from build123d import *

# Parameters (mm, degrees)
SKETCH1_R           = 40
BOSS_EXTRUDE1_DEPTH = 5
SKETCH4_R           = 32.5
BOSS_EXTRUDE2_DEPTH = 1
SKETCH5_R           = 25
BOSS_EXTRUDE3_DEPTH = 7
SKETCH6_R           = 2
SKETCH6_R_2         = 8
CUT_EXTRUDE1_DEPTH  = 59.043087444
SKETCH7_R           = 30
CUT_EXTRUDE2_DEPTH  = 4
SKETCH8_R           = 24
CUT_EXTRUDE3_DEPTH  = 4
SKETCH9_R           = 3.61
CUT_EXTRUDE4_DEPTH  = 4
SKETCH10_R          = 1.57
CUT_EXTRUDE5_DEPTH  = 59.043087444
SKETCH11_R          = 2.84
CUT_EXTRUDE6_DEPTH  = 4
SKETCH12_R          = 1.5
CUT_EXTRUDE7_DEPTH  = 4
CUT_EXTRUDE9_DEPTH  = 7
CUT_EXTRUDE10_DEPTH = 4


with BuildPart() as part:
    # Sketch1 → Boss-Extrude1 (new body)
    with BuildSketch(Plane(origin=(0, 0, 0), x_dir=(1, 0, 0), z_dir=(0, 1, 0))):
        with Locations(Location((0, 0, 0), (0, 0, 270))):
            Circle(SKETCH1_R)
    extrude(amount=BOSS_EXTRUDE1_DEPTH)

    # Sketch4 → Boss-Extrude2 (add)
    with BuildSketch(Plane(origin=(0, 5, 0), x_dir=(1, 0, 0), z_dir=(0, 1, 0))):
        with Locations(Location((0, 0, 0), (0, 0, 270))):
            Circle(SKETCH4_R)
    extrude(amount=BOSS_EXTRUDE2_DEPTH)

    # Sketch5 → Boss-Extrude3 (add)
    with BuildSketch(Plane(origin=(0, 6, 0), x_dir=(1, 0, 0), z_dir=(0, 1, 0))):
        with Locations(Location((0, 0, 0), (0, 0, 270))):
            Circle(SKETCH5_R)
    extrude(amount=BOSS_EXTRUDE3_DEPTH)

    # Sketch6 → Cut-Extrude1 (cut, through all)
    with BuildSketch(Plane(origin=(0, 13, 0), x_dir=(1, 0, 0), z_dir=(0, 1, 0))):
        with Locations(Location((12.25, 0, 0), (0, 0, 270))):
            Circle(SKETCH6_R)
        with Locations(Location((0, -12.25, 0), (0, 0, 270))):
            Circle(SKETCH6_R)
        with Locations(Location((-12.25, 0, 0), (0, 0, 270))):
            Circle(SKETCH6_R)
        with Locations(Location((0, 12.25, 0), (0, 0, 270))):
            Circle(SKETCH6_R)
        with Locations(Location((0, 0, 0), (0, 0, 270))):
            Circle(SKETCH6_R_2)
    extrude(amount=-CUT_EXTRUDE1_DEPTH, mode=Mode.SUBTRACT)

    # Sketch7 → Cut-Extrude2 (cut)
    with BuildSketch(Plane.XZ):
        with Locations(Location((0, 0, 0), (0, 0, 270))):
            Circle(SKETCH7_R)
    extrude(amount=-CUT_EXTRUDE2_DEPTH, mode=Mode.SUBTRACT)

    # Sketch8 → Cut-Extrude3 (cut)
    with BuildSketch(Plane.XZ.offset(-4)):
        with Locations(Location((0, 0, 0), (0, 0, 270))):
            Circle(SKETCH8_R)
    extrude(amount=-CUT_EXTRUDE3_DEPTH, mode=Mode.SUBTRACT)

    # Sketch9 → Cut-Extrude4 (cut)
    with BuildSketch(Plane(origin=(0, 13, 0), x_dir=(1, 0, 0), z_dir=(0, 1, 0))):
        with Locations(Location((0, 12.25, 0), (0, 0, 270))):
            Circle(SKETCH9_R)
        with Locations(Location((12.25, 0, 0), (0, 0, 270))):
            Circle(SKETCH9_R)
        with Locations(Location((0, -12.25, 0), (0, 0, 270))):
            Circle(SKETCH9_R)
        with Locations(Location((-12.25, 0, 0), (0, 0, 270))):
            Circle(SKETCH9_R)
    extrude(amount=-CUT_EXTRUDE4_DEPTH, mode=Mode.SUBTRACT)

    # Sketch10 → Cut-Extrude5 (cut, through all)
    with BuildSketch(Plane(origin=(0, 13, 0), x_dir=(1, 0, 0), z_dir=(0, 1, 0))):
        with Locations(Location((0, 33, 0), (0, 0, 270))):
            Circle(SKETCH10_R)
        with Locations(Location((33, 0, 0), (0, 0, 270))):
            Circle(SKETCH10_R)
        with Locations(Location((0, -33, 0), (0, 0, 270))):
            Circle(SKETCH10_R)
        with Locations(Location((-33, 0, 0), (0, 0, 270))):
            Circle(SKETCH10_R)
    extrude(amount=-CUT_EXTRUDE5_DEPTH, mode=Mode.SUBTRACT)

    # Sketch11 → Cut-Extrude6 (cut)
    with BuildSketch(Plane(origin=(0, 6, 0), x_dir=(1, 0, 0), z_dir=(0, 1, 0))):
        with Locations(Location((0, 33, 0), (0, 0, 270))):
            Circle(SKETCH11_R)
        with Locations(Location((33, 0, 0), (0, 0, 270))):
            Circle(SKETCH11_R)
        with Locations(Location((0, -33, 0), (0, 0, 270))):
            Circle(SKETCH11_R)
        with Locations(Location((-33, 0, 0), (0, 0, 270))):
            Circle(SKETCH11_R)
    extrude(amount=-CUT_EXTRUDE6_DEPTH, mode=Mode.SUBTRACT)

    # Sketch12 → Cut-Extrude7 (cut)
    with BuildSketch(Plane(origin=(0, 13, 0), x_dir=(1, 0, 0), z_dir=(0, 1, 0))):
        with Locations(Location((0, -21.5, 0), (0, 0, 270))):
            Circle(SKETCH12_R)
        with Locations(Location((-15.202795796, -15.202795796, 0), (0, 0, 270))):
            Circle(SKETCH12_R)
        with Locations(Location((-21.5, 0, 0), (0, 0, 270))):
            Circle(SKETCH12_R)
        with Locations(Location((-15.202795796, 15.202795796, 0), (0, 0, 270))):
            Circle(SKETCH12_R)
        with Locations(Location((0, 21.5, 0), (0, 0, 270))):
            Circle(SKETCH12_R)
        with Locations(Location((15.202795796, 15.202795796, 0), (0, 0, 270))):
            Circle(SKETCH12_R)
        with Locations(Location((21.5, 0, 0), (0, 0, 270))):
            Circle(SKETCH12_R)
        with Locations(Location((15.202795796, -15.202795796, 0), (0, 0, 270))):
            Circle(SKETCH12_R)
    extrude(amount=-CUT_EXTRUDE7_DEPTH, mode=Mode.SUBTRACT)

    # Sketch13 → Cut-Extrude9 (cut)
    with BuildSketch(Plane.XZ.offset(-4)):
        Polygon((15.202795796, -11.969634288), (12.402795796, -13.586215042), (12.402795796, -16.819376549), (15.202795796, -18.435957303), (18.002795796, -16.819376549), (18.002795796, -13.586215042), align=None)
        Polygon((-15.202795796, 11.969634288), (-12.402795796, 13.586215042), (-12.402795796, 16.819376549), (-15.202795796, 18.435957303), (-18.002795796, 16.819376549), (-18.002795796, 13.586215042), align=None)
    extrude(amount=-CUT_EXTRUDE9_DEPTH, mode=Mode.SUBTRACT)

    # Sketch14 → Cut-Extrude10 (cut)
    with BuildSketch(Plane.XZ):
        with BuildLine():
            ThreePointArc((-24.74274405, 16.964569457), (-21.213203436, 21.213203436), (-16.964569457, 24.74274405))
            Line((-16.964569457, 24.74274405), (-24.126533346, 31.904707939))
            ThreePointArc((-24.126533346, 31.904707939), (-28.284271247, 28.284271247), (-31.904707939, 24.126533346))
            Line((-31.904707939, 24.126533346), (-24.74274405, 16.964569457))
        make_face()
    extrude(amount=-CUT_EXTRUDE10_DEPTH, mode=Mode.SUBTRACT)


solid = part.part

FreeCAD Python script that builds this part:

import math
import FreeCAD as App
import Part
import Sketcher
Q = App.Units.Quantity

doc = App.newDocument("Part")
body = doc.addObject("PartDesign::Body", "Body")

# Sketch on XZ plane
sketch1 = body.newObject("Sketcher::SketchObject", "Sketch")
sketch1.AttachmentSupport = (doc.getObject("XZ_Plane"), [""])
sketch1.MapMode = "FlatFace"
sketch1.addGeometry(Part.Circle(App.Vector(0, 0, 0), App.Vector(0, 0, 1), 40), False)
sketch1.addConstraint([
    Sketcher.Constraint("Coincident", 0, 3, -1, 1),
    Sketcher.Constraint("Diameter", 0, 80.0),
])
pad1 = body.newObject("PartDesign::Pad", "Pad")
pad1.Profile = sketch1
pad1.Length = 5
pad1.Reversed = True

# Sketch on XZ plane
sketch2 = body.newObject("Sketcher::SketchObject", "Sketch001")
sketch2.AttachmentSupport = (doc.getObject("XZ_Plane"), [""])
sketch2.MapMode = "FlatFace"
sketch2.AttachmentOffset = App.Placement(App.Vector(0, 0, -5), App.Rotation())
sketch2.addGeometry(Part.Circle(App.Vector(0, 0, 0), App.Vector(0, 0, 1), 32), False)
sketch2.addConstraint([
    Sketcher.Constraint("Coincident", 0, 3, -1, 1),
    Sketcher.Constraint("Diameter", 0, 65.0),
])
pad2 = body.newObject("PartDesign::Pad", "Pad001")
pad2.Profile = sketch2
pad2.Length = 1
pad2.Reversed = True

# Sketch on XZ plane
sketch3 = body.newObject("Sketcher::SketchObject", "Sketch002")
sketch3.AttachmentSupport = (doc.getObject("XZ_Plane"), [""])
sketch3.MapMode = "FlatFace"
sketch3.AttachmentOffset = App.Placement(App.Vector(0, 0, -6), App.Rotation())
sketch3.addGeometry(Part.Circle(App.Vector(0, 0, 0), App.Vector(0, 0, 1), 25), False)
sketch3.addConstraint([
    Sketcher.Constraint("Coincident", 0, 3, -1, 1),
    Sketcher.Constraint("Diameter", 0, 50.0),
])
pad3 = body.newObject("PartDesign::Pad", "Pad002")
pad3.Profile = sketch3
pad3.Length = 7
pad3.Reversed = True

# Sketch on XZ plane
sketch4 = body.newObject("Sketcher::SketchObject", "Sketch003")
sketch4.AttachmentSupport = (doc.getObject("XZ_Plane"), [""])
sketch4.MapMode = "FlatFace"
sketch4.AttachmentOffset = App.Placement(App.Vector(0, 0, -13), App.Rotation())
sketch4.addGeometry([
    Part.Circle(App.Vector(12.2, 0, 0), App.Vector(0, 0, 1), 2),  # 0
    Part.Circle(App.Vector(0, 12.2, 0), App.Vector(0, 0, 1), 2),  # 1
    Part.Circle(App.Vector(-12.2, 0, 0), App.Vector(0, 0, 1), 2),  # 2
    Part.Circle(App.Vector(0, -12.2, 0), App.Vector(0, 0, 1), 2),  # 3
    Part.Circle(App.Vector(0, 0, 0), App.Vector(0, 0, 1), 8),  # 4
], False)
sketch4.addConstraint([
    Sketcher.Constraint("Coincident", 4, 3, -1, 1),
    Sketcher.Constraint("Equal", 0, 1),
    Sketcher.Constraint("Equal", 1, 2),
    Sketcher.Constraint("Equal", 2, 3),
    Sketcher.Constraint("Symmetric", 0, 3, 2, 3, -1, 1),
    Sketcher.Constraint("Symmetric", 1, 3, 3, 3, -1, 1),
    Sketcher.Constraint("PointOnObject", 0, 3, -1),
    Sketcher.Constraint("PointOnObject", 1, 3, -2),
    Sketcher.Constraint("Diameter", 0, 4.0),
    Sketcher.Constraint("Diameter", 4, 16.0),
    Sketcher.Constraint("DistanceX", 2, 3, 0, 3, 24.5),
    Sketcher.Constraint("DistanceY", 3, 3, 1, 3, 24.5),
])
pocket1 = body.newObject("PartDesign::Pocket", "Pocket")
pocket1.Profile = sketch4
pocket1.Type = "ThroughAll"
pocket1.Reversed = True

# Sketch on XZ plane
sketch5 = body.newObject("Sketcher::SketchObject", "Sketch004")
sketch5.AttachmentSupport = (doc.getObject("XZ_Plane"), [""])
sketch5.MapMode = "FlatFace"
sketch5.addGeometry(Part.Circle(App.Vector(0, 0, 0), App.Vector(0, 0, 1), 30), False)
sketch5.addConstraint([
    Sketcher.Constraint("Coincident", 0, 3, -1, 1),
    Sketcher.Constraint("Diameter", 0, 60.0),
])
pocket2 = body.newObject("PartDesign::Pocket", "Pocket001")
pocket2.Profile = sketch5
pocket2.Length = 4

# Sketch on XZ plane
sketch6 = body.newObject("Sketcher::SketchObject", "Sketch005")
sketch6.AttachmentSupport = (doc.getObject("XZ_Plane"), [""])
sketch6.MapMode = "FlatFace"
sketch6.AttachmentOffset = App.Placement(App.Vector(0, 0, -4), App.Rotation())
sketch6.addGeometry(Part.Circle(App.Vector(0, 0, 0), App.Vector(0, 0, 1), 24), False)
sketch6.addConstraint([
    Sketcher.Constraint("Coincident", 0, 3, -1, 1),
    Sketcher.Constraint("Diameter", 0, 48.0),
])
pocket3 = body.newObject("PartDesign::Pocket", "Pocket002")
pocket3.Profile = sketch6
pocket3.Length = 4

# Sketch on XZ plane
sketch7 = body.newObject("Sketcher::SketchObject", "Sketch006")
sketch7.AttachmentSupport = (doc.getObject("XZ_Plane"), [""])
sketch7.MapMode = "FlatFace"
sketch7.AttachmentOffset = App.Placement(App.Vector(0, 0, -13), App.Rotation())
sketch7.addGeometry([
    Part.Circle(App.Vector(0, -12.2, 0), App.Vector(0, 0, 1), 3.6),
    Part.Circle(App.Vector(12.2, 0, 0), App.Vector(0, 0, 1), 3.6),
    Part.Circle(App.Vector(0, 12.2, 0), App.Vector(0, 0, 1), 3.6),
    Part.Circle(App.Vector(-12.2, 0, 0), App.Vector(0, 0, 1), 3.6),
], False)
sketch7.addConstraint([
    Sketcher.Constraint("Equal", 0, 1),
    Sketcher.Constraint("Equal", 1, 2),
    Sketcher.Constraint("Equal", 2, 3),
    Sketcher.Constraint("Symmetric", 0, 3, 2, 3, -1, 1),
    Sketcher.Constraint("Symmetric", 1, 3, 3, 3, -1, 1),
    Sketcher.Constraint("PointOnObject", 0, 3, -2),
    Sketcher.Constraint("PointOnObject", 1, 3, -1),
    Sketcher.Constraint("Diameter", 0, 7.22),
    Sketcher.Constraint("DistanceY", 0, 3, 2, 3, 24.5),
    Sketcher.Constraint("DistanceX", 3, 3, 1, 3, 24.5),
])
pocket4 = body.newObject("PartDesign::Pocket", "Pocket003")
pocket4.Profile = sketch7
pocket4.Length = 4
pocket4.Reversed = True

# Sketch on XZ plane
sketch8 = body.newObject("Sketcher::SketchObject", "Sketch007")
sketch8.AttachmentSupport = (doc.getObject("XZ_Plane"), [""])
sketch8.MapMode = "FlatFace"
sketch8.AttachmentOffset = App.Placement(App.Vector(0, 0, -13), App.Rotation())
sketch8.addGeometry([
    Part.Circle(App.Vector(0, -33, 0), App.Vector(0, 0, 1), 1.6),
    Part.Circle(App.Vector(33, 0, 0), App.Vector(0, 0, 1), 1.6),
    Part.Circle(App.Vector(0, 33, 0), App.Vector(0, 0, 1), 1.6),
    Part.Circle(App.Vector(-33, 0, 0), App.Vector(0, 0, 1), 1.6),
], False)
sketch8.addConstraint([
    Sketcher.Constraint("Equal", 0, 1),
    Sketcher.Constraint("Equal", 1, 2),
    Sketcher.Constraint("Equal", 2, 3),
    Sketcher.Constraint("Symmetric", 0, 3, 2, 3, -1, 1),
    Sketcher.Constraint("Symmetric", 1, 3, 3, 3, -1, 1),
    Sketcher.Constraint("PointOnObject", 0, 3, -2),
    Sketcher.Constraint("PointOnObject", 1, 3, -1),
    Sketcher.Constraint("Diameter", 0, 3.14),
    Sketcher.Constraint("DistanceY", 0, 3, -1, 1, 33.0),
    Sketcher.Constraint("DistanceX", -1, 1, 1, 3, 33.0),
])
pocket5 = body.newObject("PartDesign::Pocket", "Pocket004")
pocket5.Profile = sketch8
pocket5.Type = "ThroughAll"
pocket5.Reversed = True

# Sketch on XZ plane
sketch9 = body.newObject("Sketcher::SketchObject", "Sketch008")
sketch9.AttachmentSupport = (doc.getObject("XZ_Plane"), [""])
sketch9.MapMode = "FlatFace"
sketch9.AttachmentOffset = App.Placement(App.Vector(0, 0, -6), App.Rotation())
sketch9.addGeometry([
    Part.Circle(App.Vector(0, -33, 0), App.Vector(0, 0, 1), 2.8),
    Part.Circle(App.Vector(33, 0, 0), App.Vector(0, 0, 1), 2.8),
    Part.Circle(App.Vector(0, 33, 0), App.Vector(0, 0, 1), 2.8),
    Part.Circle(App.Vector(-33, 0, 0), App.Vector(0, 0, 1), 2.8),
], False)
sketch9.addConstraint([
    Sketcher.Constraint("Equal", 0, 1),
    Sketcher.Constraint("Equal", 1, 2),
    Sketcher.Constraint("Equal", 2, 3),
    Sketcher.Constraint("Symmetric", 0, 3, 2, 3, -1, 1),
    Sketcher.Constraint("Symmetric", 1, 3, 3, 3, -1, 1),
    Sketcher.Constraint("PointOnObject", 0, 3, -2),
    Sketcher.Constraint("PointOnObject", 1, 3, -1),
    Sketcher.Constraint("Diameter", 0, 5.68),
    Sketcher.Constraint("DistanceY", 0, 3, -1, 1, 33.0),
    Sketcher.Constraint("DistanceX", -1, 1, 1, 3, 33.0),
])
pocket6 = body.newObject("PartDesign::Pocket", "Pocket005")
pocket6.Profile = sketch9
pocket6.Length = 4
pocket6.Reversed = True

# Sketch on XZ plane
sketch10 = body.newObject("Sketcher::SketchObject", "Sketch009")
sketch10.AttachmentSupport = (doc.getObject("XZ_Plane"), [""])
sketch10.MapMode = "FlatFace"
sketch10.AttachmentOffset = App.Placement(App.Vector(0, 0, -13), App.Rotation())
sketch10.addGeometry([
    Part.Circle(App.Vector(0, 21.5, 0), App.Vector(0, 0, 1), 1.5),  # 0
    Part.Circle(App.Vector(-15.2, 15.2, 0), App.Vector(0, 0, 1), 1.5),  # 1
    Part.Circle(App.Vector(-21.5, 0, 0), App.Vector(0, 0, 1), 1.5),  # 2
    Part.Circle(App.Vector(-15.2, -15.2, 0), App.Vector(0, 0, 1), 1.5),  # 3
    Part.Circle(App.Vector(0, -21.5, 0), App.Vector(0, 0, 1), 1.5),  # 4
    Part.Circle(App.Vector(15.2, -15.2, 0), App.Vector(0, 0, 1), 1.5),  # 5
    Part.Circle(App.Vector(21.5, 0, 0), App.Vector(0, 0, 1), 1.5),  # 6
    Part.Circle(App.Vector(15.2, 15.2, 0), App.Vector(0, 0, 1), 1.5),  # 7
], False)
sketch10.addConstraint([
    Sketcher.Constraint("Equal", 0, 1),
    Sketcher.Constraint("Equal", 1, 2),
    Sketcher.Constraint("Equal", 2, 3),
    Sketcher.Constraint("Equal", 3, 4),
    Sketcher.Constraint("Equal", 4, 5),
    Sketcher.Constraint("Equal", 5, 6),
    Sketcher.Constraint("Equal", 6, 7),
    Sketcher.Constraint("Symmetric", 0, 3, 4, 3, -1, 1),
    Sketcher.Constraint("Symmetric", 1, 3, 5, 3, -1, 1),
    Sketcher.Constraint("Symmetric", 2, 3, 6, 3, -1, 1),
    Sketcher.Constraint("Symmetric", 3, 3, 7, 3, -1, 1),
    Sketcher.Constraint("Symmetric", 3, 3, 5, 3, -2),
    Sketcher.Constraint("PointOnObject", 0, 3, -2),
    Sketcher.Constraint("PointOnObject", 2, 3, -1),
    Sketcher.Constraint("Diameter", 0, 3.0),
    Sketcher.Constraint("DistanceY", 4, 3, 0, 3, 43.0),
    Sketcher.Constraint("DistanceX", 2, 3, -1, 1, 21.5),
    Sketcher.Constraint("DistanceY", 3, 3, 1, 3, 30.405592),
    Sketcher.Constraint("DistanceX", 3, 3, 5, 3, 30.405592),
])
pocket7 = body.newObject("PartDesign::Pocket", "Pocket006")
pocket7.Profile = sketch10
pocket7.Length = 4
pocket7.Reversed = True

# Sketch on XZ plane
sketch11 = body.newObject("Sketcher::SketchObject", "Sketch010")
sketch11.AttachmentSupport = (doc.getObject("XZ_Plane"), [""])
sketch11.MapMode = "FlatFace"
sketch11.AttachmentOffset = App.Placement(App.Vector(0, 0, -4), App.Rotation())
sketch11.addGeometry([
    Part.LineSegment(App.Vector(15.2, -12, 0), App.Vector(12.4, -13.6, 0)),  # 0
    Part.LineSegment(App.Vector(12.4, -13.6, 0), App.Vector(12.4, -16.8, 0)),  # 1
    Part.LineSegment(App.Vector(12.4, -16.8, 0), App.Vector(15.2, -18.4, 0)),  # 2
    Part.LineSegment(App.Vector(15.2, -18.4, 0), App.Vector(18, -16.8, 0)),  # 3
    Part.LineSegment(App.Vector(18, -16.8, 0), App.Vector(18, -13.6, 0)),  # 4
    Part.LineSegment(App.Vector(18, -13.6, 0), App.Vector(15.2, -12, 0)),  # 5
    Part.LineSegment(App.Vector(-15.2, 12, 0), App.Vector(-12.4, 13.6, 0)),  # 6
    Part.LineSegment(App.Vector(-12.4, 13.6, 0), App.Vector(-12.4, 16.8, 0)),  # 7
    Part.LineSegment(App.Vector(-12.4, 16.8, 0), App.Vector(-15.2, 18.4, 0)),  # 8
    Part.LineSegment(App.Vector(-15.2, 18.4, 0), App.Vector(-18, 16.8, 0)),  # 9
    Part.LineSegment(App.Vector(-18, 16.8, 0), App.Vector(-18, 13.6, 0)),  # 10
    Part.LineSegment(App.Vector(-18, 13.6, 0), App.Vector(-15.2, 12, 0)),  # 11
], False)
sketch11.addConstraint([
    Sketcher.Constraint("Coincident", 0, 2, 1, 1),
    Sketcher.Constraint("Coincident", 1, 2, 2, 1),
    Sketcher.Constraint("Coincident", 2, 2, 3, 1),
    Sketcher.Constraint("Coincident", 3, 2, 4, 1),
    Sketcher.Constraint("Coincident", 4, 2, 5, 1),
    Sketcher.Constraint("Coincident", 5, 2, 0, 1),
    Sketcher.Constraint("Coincident", 6, 2, 7, 1),
    Sketcher.Constraint("Coincident", 7, 2, 8, 1),
    Sketcher.Constraint("Coincident", 8, 2, 9, 1),
    Sketcher.Constraint("Coincident", 9, 2, 10, 1),
    Sketcher.Constraint("Coincident", 10, 2, 11, 1),
    Sketcher.Constraint("Coincident", 11, 2, 6, 1),
    Sketcher.Constraint("Vertical", 1),
    Sketcher.Constraint("Vertical", 4),
    Sketcher.Constraint("Vertical", 7),
    Sketcher.Constraint("Vertical", 10),
    Sketcher.Constraint("Symmetric", 0, 2, 6, 2, -1, 1),
    Sketcher.Constraint("Symmetric", 2, 2, 8, 2, -1, 1),
    Sketcher.Constraint("Symmetric", 3, 2, 9, 2, -1, 1),
    Sketcher.Constraint("Symmetric", 5, 2, 11, 2, -1, 1),
    Sketcher.Constraint("Parallel", 0, 3),
    Sketcher.Constraint("Parallel", 2, 5),
    Sketcher.Constraint("Parallel", 5, 8),
    Sketcher.Constraint("Parallel", 8, 11),
    Sketcher.Constraint("Horizontal", 1, 2, 3, 2),
    Sketcher.Constraint("Horizontal", 0, 2, 4, 2),
    Sketcher.Constraint("Vertical", 2, 2, 5, 2),
    Sketcher.Constraint("Angle", 0, Q("-150 deg")),
    Sketcher.Constraint("DistanceX", 1, 2, 2, 2, 2.8),
    Sketcher.Constraint("DistanceY", 1, 2, 1, 1, 3.233162),
    Sketcher.Constraint("DistanceX", 6, 2, 0, 2, 24.805592),
    Sketcher.Constraint("DistanceY", 0, 2, 6, 2, 27.17243),
])
pocket8 = body.newObject("PartDesign::Pocket", "Pocket007")
pocket8.Profile = sketch11
pocket8.Length = 7

# Sketch on XZ plane
sketch12 = body.newObject("Sketcher::SketchObject", "Sketch011")
sketch12.AttachmentSupport = (doc.getObject("XZ_Plane"), [""])
sketch12.MapMode = "FlatFace"
sketch12.addGeometry([
    Part.ArcOfCircle(Part.Circle(App.Vector(0, 0, 0), App.Vector(0, 0, 1), 30), math.radians(124), math.radians(146)),
    Part.LineSegment(App.Vector(-17, 25, 0), App.Vector(-24, 32, 0)),
    Part.ArcOfCircle(Part.Circle(App.Vector(0, 0, 0), App.Vector(0, 0, 1), 40), math.radians(127.1), math.radians(142.9)),
    Part.LineSegment(App.Vector(-32, 24, 0), App.Vector(-25, 17, 0)),
], False)
sketch12.addConstraint([
    Sketcher.Constraint("Coincident", 0, 1, 1, 1),
    Sketcher.Constraint("Coincident", 1, 2, 2, 1),
    Sketcher.Constraint("Coincident", 2, 2, 3, 1),
    Sketcher.Constraint("Coincident", 3, 2, 0, 2),
    Sketcher.Constraint("Coincident", 0, 3, -1, 1),
    Sketcher.Constraint("Coincident", 2, 3, -1, 1),
    Sketcher.Constraint("Parallel", 1, 3),
    Sketcher.Constraint("Equal", 1, 3),
    Sketcher.Constraint("Radius", 0, 30.0),
    Sketcher.Constraint("Radius", 2, 40.0),
    Sketcher.Constraint("Angle", 1, Q("135 deg")),
    Sketcher.Constraint("DistanceX", 0, 1, -1, 1, 16.964569),
])
pocket9 = body.newObject("PartDesign::Pocket", "Pocket008")
pocket9.Profile = sketch12
pocket9.Length = 4

doc.recompute()
